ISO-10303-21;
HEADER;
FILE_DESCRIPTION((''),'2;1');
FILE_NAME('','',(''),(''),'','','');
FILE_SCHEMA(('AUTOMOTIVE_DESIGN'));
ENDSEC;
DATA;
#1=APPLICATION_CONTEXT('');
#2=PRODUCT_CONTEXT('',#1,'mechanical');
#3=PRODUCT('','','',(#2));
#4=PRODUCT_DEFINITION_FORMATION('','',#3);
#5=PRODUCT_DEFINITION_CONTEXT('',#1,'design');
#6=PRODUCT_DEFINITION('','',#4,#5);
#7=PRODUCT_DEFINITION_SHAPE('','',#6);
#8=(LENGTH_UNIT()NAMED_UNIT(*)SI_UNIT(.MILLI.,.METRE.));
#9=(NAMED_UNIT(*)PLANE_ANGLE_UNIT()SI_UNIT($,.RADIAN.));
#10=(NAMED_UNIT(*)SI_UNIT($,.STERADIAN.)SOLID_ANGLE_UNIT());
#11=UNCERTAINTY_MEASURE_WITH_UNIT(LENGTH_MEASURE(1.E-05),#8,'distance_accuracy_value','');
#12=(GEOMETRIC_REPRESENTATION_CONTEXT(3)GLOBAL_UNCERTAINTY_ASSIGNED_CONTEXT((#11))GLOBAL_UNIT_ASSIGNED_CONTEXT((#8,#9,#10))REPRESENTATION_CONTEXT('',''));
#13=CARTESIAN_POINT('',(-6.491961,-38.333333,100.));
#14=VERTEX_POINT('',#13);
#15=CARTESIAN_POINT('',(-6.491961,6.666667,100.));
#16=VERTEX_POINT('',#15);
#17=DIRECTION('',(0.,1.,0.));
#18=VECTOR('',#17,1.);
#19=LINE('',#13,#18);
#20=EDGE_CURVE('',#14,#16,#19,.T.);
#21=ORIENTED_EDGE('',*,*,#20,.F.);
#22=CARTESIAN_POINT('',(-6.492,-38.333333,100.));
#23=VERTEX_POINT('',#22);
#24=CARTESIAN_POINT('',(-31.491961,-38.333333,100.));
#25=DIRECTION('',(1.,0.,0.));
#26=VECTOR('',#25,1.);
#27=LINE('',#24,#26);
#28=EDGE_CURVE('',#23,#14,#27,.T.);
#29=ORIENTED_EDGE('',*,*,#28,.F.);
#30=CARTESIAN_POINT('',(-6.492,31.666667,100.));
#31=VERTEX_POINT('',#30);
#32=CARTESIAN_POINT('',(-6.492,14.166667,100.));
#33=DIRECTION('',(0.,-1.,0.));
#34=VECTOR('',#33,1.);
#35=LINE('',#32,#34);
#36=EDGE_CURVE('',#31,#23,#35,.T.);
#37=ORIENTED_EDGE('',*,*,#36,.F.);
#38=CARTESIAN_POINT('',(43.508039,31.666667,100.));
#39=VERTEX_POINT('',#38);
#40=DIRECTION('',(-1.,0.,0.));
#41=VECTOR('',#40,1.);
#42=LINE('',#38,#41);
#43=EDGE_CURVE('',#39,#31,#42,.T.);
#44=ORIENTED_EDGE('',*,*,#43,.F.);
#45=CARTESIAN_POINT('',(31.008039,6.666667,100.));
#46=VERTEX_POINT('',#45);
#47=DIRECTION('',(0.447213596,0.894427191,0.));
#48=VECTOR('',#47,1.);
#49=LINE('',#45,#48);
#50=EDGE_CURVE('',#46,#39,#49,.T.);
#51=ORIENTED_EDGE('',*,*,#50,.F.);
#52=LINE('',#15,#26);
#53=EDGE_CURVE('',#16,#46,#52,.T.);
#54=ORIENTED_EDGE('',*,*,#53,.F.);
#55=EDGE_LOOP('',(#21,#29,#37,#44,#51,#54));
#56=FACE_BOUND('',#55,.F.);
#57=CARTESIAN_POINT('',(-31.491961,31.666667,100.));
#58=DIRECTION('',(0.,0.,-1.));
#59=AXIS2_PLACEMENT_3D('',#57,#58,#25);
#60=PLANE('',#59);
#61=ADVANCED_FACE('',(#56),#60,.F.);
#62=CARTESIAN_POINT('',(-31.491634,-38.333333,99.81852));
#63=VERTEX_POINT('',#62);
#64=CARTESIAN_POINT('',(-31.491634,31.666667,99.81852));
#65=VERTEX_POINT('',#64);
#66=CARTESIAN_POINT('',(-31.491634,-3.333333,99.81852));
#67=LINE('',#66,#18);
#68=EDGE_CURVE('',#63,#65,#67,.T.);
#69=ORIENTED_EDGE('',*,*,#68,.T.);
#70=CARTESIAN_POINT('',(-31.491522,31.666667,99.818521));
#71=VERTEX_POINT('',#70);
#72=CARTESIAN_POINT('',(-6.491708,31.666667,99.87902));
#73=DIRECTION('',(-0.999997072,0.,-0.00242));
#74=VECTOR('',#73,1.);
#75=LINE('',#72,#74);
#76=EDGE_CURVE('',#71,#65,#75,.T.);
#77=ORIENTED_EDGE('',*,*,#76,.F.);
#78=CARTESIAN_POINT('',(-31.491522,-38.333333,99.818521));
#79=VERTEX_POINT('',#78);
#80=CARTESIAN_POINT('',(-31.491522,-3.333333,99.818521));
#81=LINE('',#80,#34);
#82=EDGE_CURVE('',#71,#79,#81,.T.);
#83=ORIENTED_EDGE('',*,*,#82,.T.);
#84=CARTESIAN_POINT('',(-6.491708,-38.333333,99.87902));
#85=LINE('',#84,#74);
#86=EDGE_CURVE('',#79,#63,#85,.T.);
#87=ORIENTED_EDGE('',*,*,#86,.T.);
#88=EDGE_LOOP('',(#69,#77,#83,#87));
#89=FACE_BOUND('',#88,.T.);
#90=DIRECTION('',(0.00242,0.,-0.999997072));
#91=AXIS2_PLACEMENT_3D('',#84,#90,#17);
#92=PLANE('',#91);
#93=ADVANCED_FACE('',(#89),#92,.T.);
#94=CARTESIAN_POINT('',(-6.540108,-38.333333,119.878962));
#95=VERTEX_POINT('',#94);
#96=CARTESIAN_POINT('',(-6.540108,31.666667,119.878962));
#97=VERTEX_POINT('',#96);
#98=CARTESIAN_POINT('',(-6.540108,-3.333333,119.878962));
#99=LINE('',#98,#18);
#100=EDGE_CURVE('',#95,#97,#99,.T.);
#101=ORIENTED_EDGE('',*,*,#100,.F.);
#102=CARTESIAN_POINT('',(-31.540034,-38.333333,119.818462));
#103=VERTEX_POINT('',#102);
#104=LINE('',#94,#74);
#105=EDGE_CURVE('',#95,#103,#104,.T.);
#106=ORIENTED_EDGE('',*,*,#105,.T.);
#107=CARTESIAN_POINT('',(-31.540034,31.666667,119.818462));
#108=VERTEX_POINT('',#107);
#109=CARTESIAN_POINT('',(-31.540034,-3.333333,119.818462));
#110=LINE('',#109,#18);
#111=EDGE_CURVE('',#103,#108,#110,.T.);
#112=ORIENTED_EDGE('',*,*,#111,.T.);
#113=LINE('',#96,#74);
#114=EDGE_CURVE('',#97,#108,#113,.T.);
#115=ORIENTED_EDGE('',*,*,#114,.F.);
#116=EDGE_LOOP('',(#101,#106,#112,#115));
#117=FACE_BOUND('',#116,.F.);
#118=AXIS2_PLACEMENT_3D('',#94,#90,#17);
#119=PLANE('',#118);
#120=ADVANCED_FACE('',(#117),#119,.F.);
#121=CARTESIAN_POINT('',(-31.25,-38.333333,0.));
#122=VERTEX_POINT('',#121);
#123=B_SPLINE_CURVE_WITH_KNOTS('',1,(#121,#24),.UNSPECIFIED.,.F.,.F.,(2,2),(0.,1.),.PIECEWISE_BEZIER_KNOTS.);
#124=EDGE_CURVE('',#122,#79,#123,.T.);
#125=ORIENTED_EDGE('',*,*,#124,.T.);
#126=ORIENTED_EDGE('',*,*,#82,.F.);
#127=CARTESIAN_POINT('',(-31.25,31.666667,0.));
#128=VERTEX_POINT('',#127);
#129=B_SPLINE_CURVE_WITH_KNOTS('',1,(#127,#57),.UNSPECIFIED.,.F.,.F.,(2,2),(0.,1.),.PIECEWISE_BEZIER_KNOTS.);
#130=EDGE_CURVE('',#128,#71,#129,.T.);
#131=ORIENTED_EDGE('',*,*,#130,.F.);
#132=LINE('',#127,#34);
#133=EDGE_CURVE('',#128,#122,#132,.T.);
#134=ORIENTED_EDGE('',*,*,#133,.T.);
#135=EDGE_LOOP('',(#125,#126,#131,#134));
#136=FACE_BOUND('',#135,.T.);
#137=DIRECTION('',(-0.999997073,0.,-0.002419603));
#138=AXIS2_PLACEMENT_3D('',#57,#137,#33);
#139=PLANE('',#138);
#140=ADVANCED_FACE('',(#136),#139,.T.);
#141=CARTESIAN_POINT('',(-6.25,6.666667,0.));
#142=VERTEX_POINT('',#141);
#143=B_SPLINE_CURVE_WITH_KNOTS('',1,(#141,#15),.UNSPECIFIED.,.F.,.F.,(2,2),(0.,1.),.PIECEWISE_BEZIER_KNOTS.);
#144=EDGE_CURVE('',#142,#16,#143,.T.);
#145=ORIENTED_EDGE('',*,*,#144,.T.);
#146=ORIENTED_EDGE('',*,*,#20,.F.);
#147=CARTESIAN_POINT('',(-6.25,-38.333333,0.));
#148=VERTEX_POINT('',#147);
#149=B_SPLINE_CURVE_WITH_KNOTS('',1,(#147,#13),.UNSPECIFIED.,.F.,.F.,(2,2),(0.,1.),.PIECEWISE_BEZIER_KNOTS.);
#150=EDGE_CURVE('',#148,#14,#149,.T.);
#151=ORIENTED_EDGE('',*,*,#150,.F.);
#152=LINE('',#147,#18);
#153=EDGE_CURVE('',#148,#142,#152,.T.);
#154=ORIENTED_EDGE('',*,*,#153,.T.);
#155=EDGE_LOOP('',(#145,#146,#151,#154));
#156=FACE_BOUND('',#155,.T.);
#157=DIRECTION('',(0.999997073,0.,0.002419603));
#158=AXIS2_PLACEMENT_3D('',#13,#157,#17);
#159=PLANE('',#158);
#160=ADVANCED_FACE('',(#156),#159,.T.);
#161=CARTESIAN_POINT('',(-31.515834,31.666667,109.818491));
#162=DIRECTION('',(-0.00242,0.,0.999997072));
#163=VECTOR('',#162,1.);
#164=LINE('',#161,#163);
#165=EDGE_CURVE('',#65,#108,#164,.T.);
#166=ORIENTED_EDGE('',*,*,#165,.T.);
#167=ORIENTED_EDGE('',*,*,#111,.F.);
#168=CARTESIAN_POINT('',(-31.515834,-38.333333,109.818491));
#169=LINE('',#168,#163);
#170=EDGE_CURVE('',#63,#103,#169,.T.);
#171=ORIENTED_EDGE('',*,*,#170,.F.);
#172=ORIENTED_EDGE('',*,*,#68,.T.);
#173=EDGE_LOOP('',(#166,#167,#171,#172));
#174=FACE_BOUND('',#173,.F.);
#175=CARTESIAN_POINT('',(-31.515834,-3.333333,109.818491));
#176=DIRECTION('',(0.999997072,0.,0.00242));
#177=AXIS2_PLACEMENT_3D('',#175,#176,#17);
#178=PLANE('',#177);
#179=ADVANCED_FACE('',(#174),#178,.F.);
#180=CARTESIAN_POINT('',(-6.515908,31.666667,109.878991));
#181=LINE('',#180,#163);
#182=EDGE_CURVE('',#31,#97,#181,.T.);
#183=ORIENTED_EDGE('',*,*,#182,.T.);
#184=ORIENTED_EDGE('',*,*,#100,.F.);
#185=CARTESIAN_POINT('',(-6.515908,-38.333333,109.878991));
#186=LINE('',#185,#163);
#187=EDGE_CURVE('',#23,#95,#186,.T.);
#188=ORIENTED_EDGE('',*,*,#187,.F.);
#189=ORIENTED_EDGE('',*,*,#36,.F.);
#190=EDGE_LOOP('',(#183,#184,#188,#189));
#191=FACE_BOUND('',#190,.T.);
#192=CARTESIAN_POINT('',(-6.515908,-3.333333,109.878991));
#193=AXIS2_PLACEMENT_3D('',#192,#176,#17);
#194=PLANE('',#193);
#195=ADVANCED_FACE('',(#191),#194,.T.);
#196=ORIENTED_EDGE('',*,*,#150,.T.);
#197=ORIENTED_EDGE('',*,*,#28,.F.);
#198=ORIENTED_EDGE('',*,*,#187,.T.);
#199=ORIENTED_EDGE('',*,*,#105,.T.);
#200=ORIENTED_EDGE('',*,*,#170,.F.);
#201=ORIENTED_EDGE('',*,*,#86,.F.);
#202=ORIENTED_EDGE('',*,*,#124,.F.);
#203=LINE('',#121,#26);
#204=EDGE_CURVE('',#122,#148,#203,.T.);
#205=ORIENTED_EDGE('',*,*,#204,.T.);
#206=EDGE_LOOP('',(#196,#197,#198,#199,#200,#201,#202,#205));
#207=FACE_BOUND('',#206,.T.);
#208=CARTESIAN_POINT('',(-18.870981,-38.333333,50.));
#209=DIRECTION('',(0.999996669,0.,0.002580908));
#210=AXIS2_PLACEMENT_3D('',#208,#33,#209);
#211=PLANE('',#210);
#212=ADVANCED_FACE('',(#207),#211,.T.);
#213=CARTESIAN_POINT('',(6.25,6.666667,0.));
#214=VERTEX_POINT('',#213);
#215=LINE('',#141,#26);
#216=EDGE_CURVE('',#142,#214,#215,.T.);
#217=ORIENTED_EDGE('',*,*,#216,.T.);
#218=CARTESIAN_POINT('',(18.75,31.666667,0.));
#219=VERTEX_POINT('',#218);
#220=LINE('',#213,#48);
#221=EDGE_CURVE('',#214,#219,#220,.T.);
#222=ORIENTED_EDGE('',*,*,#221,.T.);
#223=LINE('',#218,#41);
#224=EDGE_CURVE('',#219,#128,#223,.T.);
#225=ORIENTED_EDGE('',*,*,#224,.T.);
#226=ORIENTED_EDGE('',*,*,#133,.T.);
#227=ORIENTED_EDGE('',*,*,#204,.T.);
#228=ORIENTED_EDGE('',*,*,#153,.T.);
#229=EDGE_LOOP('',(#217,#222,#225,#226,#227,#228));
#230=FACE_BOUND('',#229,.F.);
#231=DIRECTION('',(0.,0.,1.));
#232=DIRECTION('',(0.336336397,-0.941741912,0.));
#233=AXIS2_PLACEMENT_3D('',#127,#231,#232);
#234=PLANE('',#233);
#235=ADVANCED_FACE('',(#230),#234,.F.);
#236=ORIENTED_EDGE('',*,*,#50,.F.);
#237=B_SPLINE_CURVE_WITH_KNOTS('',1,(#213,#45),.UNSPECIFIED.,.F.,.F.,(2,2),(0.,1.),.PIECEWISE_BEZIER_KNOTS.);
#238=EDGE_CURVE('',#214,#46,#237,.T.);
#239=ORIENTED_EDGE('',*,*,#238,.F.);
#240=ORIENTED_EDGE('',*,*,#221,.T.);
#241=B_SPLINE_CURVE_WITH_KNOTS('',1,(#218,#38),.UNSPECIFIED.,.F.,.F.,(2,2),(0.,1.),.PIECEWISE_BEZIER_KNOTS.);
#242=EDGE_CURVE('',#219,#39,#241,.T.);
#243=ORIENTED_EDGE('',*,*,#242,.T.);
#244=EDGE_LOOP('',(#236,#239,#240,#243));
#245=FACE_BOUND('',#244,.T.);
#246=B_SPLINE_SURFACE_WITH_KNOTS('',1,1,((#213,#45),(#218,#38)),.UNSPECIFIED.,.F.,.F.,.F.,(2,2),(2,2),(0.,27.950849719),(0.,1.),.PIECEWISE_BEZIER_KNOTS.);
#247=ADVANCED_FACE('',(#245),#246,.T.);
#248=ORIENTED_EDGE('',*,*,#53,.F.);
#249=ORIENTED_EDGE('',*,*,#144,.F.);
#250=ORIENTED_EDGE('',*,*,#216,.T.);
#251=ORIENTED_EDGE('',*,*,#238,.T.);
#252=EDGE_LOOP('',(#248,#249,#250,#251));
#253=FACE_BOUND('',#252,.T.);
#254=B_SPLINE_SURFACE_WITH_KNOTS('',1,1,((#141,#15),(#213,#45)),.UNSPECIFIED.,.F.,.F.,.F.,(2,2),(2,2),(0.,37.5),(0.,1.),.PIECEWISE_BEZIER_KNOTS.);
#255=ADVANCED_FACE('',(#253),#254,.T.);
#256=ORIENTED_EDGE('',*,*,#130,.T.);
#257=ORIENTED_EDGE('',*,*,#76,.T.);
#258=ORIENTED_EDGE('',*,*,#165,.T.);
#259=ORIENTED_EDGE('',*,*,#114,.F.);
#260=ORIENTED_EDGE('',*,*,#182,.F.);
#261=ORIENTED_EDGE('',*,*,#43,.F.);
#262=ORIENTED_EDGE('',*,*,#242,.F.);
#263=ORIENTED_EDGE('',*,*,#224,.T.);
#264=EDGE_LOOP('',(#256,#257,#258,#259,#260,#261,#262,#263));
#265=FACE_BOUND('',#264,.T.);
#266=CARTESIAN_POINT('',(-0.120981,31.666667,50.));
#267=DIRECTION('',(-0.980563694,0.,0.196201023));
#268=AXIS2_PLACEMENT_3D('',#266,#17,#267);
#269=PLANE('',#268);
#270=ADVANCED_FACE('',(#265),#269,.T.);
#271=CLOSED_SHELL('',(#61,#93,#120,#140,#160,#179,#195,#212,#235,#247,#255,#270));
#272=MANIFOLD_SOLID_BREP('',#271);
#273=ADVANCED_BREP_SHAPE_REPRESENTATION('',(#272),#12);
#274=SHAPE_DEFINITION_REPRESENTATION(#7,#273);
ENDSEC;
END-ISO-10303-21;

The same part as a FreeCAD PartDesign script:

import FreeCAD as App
import Part
import Sketcher

V = App.Vector

doc = App.newDocument("Part")
params = doc.addObject("Spreadsheet::Sheet", "Params")
for row, (alias, value) in enumerate([
    ("sketch1_width", "25 mm"),
    ("sketch1_width2", "50 mm"),
    ("sketch1_height", "70 mm"),
    ("sketch1_height2", "45 mm"),
    ("sketch1_width3", "12.5 mm"),
    ("sketch2_width", "25 mm"),
    ("sketch2_width2", "75 mm"),
    ("sketch2_height", "70 mm"),
    ("sketch2_height2", "45 mm"),
    ("sketch2_width3", "37.5 mm"),
    ("sketch3_width", "70 mm"),
    ("sketch3_height", "20 mm"),
    ("pad1_length", "25 mm"),
], start=1):
    params.set(f"A{row}", alias)
    params.set(f"B{row}", "=" + value)
    params.setAlias(f"B{row}", alias)

body = doc.addObject("PartDesign::Body", "Body")

sketch1 = body.newObject("Sketcher::SketchObject", "Sketch")
sketch1.AttachmentSupport = (doc.getObject("XY_Plane"), [""])
sketch1.MapMode = "FlatFace"
sketch1.addGeometry([
    Part.LineSegment(V(-31.25, 31.666667, 0), V(-31.25, -38.333333, 0)),
    Part.LineSegment(V(-31.25, -38.333333, 0), V(-6.25, -38.333333, 0)),
    Part.LineSegment(V(-6.25, -38.333333, 0), V(-6.25, 6.666667, 0)),
    Part.LineSegment(V(-6.25, 6.666667, 0), V(6.25, 6.666667, 0)),
    Part.LineSegment(V(6.25, 6.666667, 0), V(18.75, 31.666667, 0)),
    Part.LineSegment(V(18.75, 31.666667, 0), V(-31.25, 31.666667, 0)),
], False)
sketch1.addConstraint([
    Sketcher.Constraint("Coincident", 0, 2, 1, 1),
    Sketcher.Constraint("Coincident", 1, 2, 2, 1),
    Sketcher.Constraint("Coincident", 2, 2, 3, 1),
    Sketcher.Constraint("Coincident", 3, 2, 4, 1),
    Sketcher.Constraint("Coincident", 4, 2, 5, 1),
    Sketcher.Constraint("Coincident", 5, 2, 0, 1),
    Sketcher.Constraint("Vertical", 0),
    Sketcher.Constraint("Horizontal", 1),
    Sketcher.Constraint("Vertical", 2),
    Sketcher.Constraint("Horizontal", 3),
    Sketcher.Constraint("Horizontal", 5),
    Sketcher.Constraint("DistanceX", 1, 1, 1, 2, 25.0),
    Sketcher.Constraint("DistanceX", 5, 2, 5, 1, 50.0),
    Sketcher.Constraint("DistanceY", 0, 2, 0, 1, 70.0),
    Sketcher.Constraint("DistanceY", 2, 1, 2, 2, 45.0),
    Sketcher.Constraint("DistanceX", 3, 1, 3, 2, 12.5),
    Sketcher.Constraint("DistanceX", 0, 2, -1, 1, 31.25),
    Sketcher.Constraint("DistanceY", 0, 2, -1, 1, 38.333333),
])
sketch1.setExpression("Constraints[11]", "Params.sketch1_width")
sketch1.setExpression("Constraints[12]", "Params.sketch1_width2")
sketch1.setExpression("Constraints[13]", "Params.sketch1_height")
sketch1.setExpression("Constraints[14]", "Params.sketch1_height2")
sketch1.setExpression("Constraints[15]", "Params.sketch1_width3")

sketch2 = body.newObject("Sketcher::SketchObject", "Sketch001")
sketch2.AttachmentSupport = (doc.getObject("XY_Plane"), [""])
sketch2.MapMode = "FlatFace"
sketch2.AttachmentOffset = App.Placement(V(0, 0, 100), App.Rotation())
sketch2.addGeometry([
    Part.LineSegment(V(-31.491961, 31.666667, 0), V(-31.491961, -38.333333, 0)),
    Part.LineSegment(V(-31.491961, -38.333333, 0), V(-6.491961, -38.333333, 0)),
    Part.LineSegment(V(-6.491961, -38.333333, 0), V(-6.491961, 6.666667, 0)),
    Part.LineSegment(V(-6.491961, 6.666667, 0), V(31.008039, 6.666667, 0)),
    Part.LineSegment(V(31.008039, 6.666667, 0), V(43.508039, 31.666667, 0)),
    Part.LineSegment(V(43.508039, 31.666667, 0), V(-31.491961, 31.666667, 0)),
], False)
sketch2.addConstraint([
    Sketcher.Constraint("Coincident", 0, 2, 1, 1),
    Sketcher.Constraint("Coincident", 1, 2, 2, 1),
    Sketcher.Constraint("Coincident", 2, 2, 3, 1),
    Sketcher.Constraint("Coincident", 3, 2, 4, 1),
    Sketcher.Constraint("Coincident", 4, 2, 5, 1),
    Sketcher.Constraint("Coincident", 5, 2, 0, 1),
    Sketcher.Constraint("Vertical", 0),
    Sketcher.Constraint("Horizontal", 1),
    Sketcher.Constraint("Vertical", 2),
    Sketcher.Constraint("Horizontal", 3),
    Sketcher.Constraint("Horizontal", 5),
    Sketcher.Constraint("DistanceX", 1, 1, 1, 2, 25.0),
    Sketcher.Constraint("DistanceX", 5, 2, 5, 1, 75.0),
    Sketcher.Constraint("DistanceY", 0, 2, 0, 1, 70.0),
    Sketcher.Constraint("DistanceY", 2, 1, 2, 2, 45.0),
    Sketcher.Constraint("DistanceX", 3, 1, 3, 2, 37.5),
    Sketcher.Constraint("DistanceX", 0, 2, -1, 1, 31.491961),
    Sketcher.Constraint("DistanceY", 0, 2, -1, 1, 38.333333),
])
sketch2.setExpression("Constraints[11]", "Params.sketch2_width")
sketch2.setExpression("Constraints[12]", "Params.sketch2_width2")
sketch2.setExpression("Constraints[13]", "Params.sketch2_height")
sketch2.setExpression("Constraints[14]", "Params.sketch2_height2")
sketch2.setExpression("Constraints[15]", "Params.sketch2_width3")

additiveloft = body.newObject("PartDesign::AdditiveLoft", "AdditiveLoft")
additiveloft.Profile = sketch1
additiveloft.Sections = [sketch2]

sketch3 = body.newObject("Sketcher::SketchObject", "Sketch002")
sketch3.Placement = App.Placement(V(-6.249963, 0, -0.015122), App.Rotation(V(0, 1, 0), V(-0.00242, 0, 0.999997072), V(0.999997072, 0, 0.00242), "ZXY"))
sketch3.addGeometry([
    Part.LineSegment(V(-38.333333, 119.894435, 0), V(-38.333333, 99.894435, 0)),
    Part.LineSegment(V(-38.333333, 99.894435, 0), V(31.666667, 99.894435, 0)),
    Part.LineSegment(V(31.666667, 99.894435, 0), V(31.666667, 119.894435, 0)),
    Part.LineSegment(V(31.666667, 119.894435, 0), V(-38.333333, 119.894435, 0)),
], False)
sketch3.addConstraint([
    Sketcher.Constraint("Coincident", 0, 2, 1, 1),
    Sketcher.Constraint("Coincident", 1, 2, 2, 1),
    Sketcher.Constraint("Coincident", 2, 2, 3, 1),
    Sketcher.Constraint("Coincident", 3, 2, 0, 1),
    Sketcher.Constraint("Vertical", 0),
    Sketcher.Constraint("Horizontal", 1),
    Sketcher.Constraint("Vertical", 2),
    Sketcher.Constraint("Horizontal", 3),
    Sketcher.Constraint("DistanceX", 1, 1, 1, 2, 70.0),
    Sketcher.Constraint("DistanceY", 0, 2, 0, 1, 20.0),
    Sketcher.Constraint("DistanceX", 0, 2, -1, 1, 38.333333),
    Sketcher.Constraint("DistanceY", -1, 1, 0, 2, 99.894435),
])
sketch3.setExpression("Constraints[8]", "Params.sketch3_width")
sketch3.setExpression("Constraints[9]", "Params.sketch3_height")
pad1 = body.newObject("PartDesign::Pad", "Pad")
pad1.Profile = sketch3
pad1.setExpression("Length", "Params.pad1_length")
pad1.Reversed = True

doc.recompute()
